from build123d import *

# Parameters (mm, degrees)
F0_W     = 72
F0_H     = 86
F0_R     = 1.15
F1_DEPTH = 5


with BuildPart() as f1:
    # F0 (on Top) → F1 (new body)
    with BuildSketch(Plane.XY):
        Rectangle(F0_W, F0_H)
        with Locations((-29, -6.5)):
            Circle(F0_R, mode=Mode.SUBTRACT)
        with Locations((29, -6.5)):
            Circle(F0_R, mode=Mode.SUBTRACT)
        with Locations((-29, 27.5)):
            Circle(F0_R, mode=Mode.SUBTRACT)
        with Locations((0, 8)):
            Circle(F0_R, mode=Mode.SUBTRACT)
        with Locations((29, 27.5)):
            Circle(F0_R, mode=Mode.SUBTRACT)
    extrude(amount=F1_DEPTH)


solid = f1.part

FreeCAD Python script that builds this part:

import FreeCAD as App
import Part
import Sketcher
from FreeCAD import Vector
Q = App.Units.Quantity


def add_polygon(sketch, points):
    """Adds a closed chain of lines whose ends are joined by coincident constraints."""
    first, n = sketch.GeometryCount, len(points)
    for a, b in zip(points, points[1:] + points[:1]):
        sketch.addGeometry(Part.LineSegment(App.Vector(*a, 0), App.Vector(*b, 0)), False)
    for i in range(n):
        sketch.addConstraint(Sketcher.Constraint("Coincident", first + i, 2, first + (i + 1) % n, 1))

doc = App.newDocument("Part")
params = doc.addObject("Spreadsheet::Sheet", "Params")
for row, (alias, value) in enumerate([
    ("sketch1_diameter", "2.3 mm"),
    ("sketch1_width", "72 mm"),
    ("sketch1_height", "86 mm"),
    ("pad1_length", "5 mm"),
], start=1):
    params.set(f"A{row}", alias)
    params.set(f"B{row}", "=" + value)
    params.setAlias(f"B{row}", alias)

body = doc.addObject("PartDesign::Body", "Body")

# Sketch on XY plane
sketch1 = body.newObject("Sketcher::SketchObject", "Sketch")
sketch1.AttachmentSupport = (doc.getObject("XY_Plane"), [""])
sketch1.MapMode = "FlatFace"
add_polygon(sketch1, [(-36, 43), (-36, -43), (36, -43), (36, 43)])  # lines 0-3
sketch1.addGeometry(Part.Circle(Vector(-29, -6.5, 0), Vector(0, 0, 1), 1.1), False)  # 4
sketch1.addGeometry(Part.Circle(Vector(29, -6.5, 0), Vector(0, 0, 1), 1.1), False)  # 5
sketch1.addGeometry(Part.Circle(Vector(0, 8, 0), Vector(0, 0, 1), 1.1), False)  # 6
sketch1.addGeometry(Part.Circle(Vector(-29, 27.5, 0), Vector(0, 0, 1), 1.1), False)  # 7
sketch1.addGeometry(Part.Circle(Vector(29, 27.5, 0), Vector(0, 0, 1), 1.1), False)  # 8
sketch1.addConstraint([
    Sketcher.Constraint("Vertical", 0),
    Sketcher.Constraint("Horizontal", 1),
    Sketcher.Constraint("Vertical", 2),
    Sketcher.Constraint("Horizontal", 3),
    Sketcher.Constraint("Equal", 4, 5),
    Sketcher.Constraint("Equal", 5, 6),
    Sketcher.Constraint("Equal", 6, 7),
    Sketcher.Constraint("Equal", 7, 8),
    Sketcher.Constraint("Symmetric", 0, 2, 2, 2, -1, 1),
    Sketcher.Constraint("Symmetric", 4, 3, 5, 3, -2),
    Sketcher.Constraint("Symmetric", 7, 3, 8, 3, -2),
    Sketcher.Constraint("PointOnObject", 6, 3, -2),
    Sketcher.Constraint("Vertical", 4, 3, 7, 3),
    Sketcher.Constraint("Diameter", 4, Q("2.3 mm")),
    Sketcher.Constraint("DistanceX", 1, 1, 1, 2, Q("72 mm")),
    Sketcher.Constraint("DistanceY", 0, 2, 0, 1, Q("86 mm")),
    Sketcher.Constraint("DistanceX", 4, 3, -1, 1, Q("29 mm")),
    Sketcher.Constraint("DistanceY", -1, 1, 6, 3, Q("8 mm")),
    Sketcher.Constraint("DistanceY", 4, 3, 7, 3, Q("34 mm")),
    Sketcher.Constraint("DistanceY", 4, 3, -1, 1, Q("6.5 mm")),
])
sketch1.setExpression("Constraints[17]", "Params.sketch1_diameter")
sketch1.setExpression("Constraints[18]", "Params.sketch1_width")
sketch1.setExpression("Constraints[19]", "Params.sketch1_height")
pad1 = body.newObject("PartDesign::Pad", "Pad")
pad1.Profile = sketch1
pad1.setExpression("Length", "Params.pad1_length")

doc.recompute()
